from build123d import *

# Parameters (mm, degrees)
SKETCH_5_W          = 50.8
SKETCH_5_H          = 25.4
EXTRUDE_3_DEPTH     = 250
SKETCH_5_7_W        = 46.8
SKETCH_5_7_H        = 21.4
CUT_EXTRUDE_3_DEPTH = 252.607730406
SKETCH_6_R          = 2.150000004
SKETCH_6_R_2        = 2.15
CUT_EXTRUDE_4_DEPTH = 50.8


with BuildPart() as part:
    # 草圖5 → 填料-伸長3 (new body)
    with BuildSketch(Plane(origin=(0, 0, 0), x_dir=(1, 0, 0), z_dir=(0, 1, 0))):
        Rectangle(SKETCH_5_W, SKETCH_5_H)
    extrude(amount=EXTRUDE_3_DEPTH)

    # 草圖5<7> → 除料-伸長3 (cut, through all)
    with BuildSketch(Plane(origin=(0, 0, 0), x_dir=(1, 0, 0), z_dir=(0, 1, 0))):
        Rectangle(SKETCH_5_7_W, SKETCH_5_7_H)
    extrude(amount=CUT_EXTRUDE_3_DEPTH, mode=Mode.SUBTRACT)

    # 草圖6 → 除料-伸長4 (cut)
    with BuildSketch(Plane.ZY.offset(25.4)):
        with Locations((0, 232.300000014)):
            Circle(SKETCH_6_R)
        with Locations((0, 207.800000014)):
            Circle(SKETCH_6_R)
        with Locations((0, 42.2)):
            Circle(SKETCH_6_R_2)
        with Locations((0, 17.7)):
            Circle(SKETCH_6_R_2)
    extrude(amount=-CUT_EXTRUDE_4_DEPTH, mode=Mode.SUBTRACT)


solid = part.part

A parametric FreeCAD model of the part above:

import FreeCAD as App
import Part
import Sketcher


def add_polygon(sketch, points):
    """Adds a closed chain of lines whose ends are joined by coincident constraints."""
    first, n = sketch.GeometryCount, len(points)
    for a, b in zip(points, points[1:] + points[:1]):
        sketch.addGeometry(Part.LineSegment(App.Vector(*a, 0), App.Vector(*b, 0)), False)
    for i in range(n):
        sketch.addConstraint(Sketcher.Constraint("Coincident", first + i, 2, first + (i + 1) % n, 1))

doc = App.newDocument("Part")
body = doc.addObject("PartDesign::Body", "Body")

sketch1 = doc.addObject("Sketcher::SketchObject", "Sketch")
body.addObject(sketch1)
sketch1.AttachmentSupport = (doc.XZ_Plane, [""])
sketch1.MapMode = "FlatFace"
add_polygon(sketch1, [(-25, -13), (-25, 13), (25, 13), (25, -13)])
sketch1.addConstraint([
    Sketcher.Constraint("Vertical", 0),
    Sketcher.Constraint("Horizontal", 1),
    Sketcher.Constraint("Vertical", 2),
    Sketcher.Constraint("Horizontal", 3),
    Sketcher.Constraint("Symmetric", 0, 2, 2, 2, -1, 1),
    Sketcher.Constraint("DistanceX", 1, 1, 1, 2, 50.8),
    Sketcher.Constraint("DistanceY", 0, 1, 0, 2, 25.4),
])
pad1 = doc.addObject("PartDesign::Pad", "Pad")
body.addObject(pad1)
pad1.Profile = sketch1
pad1.Length = 250
pad1.Reversed = True

sketch2 = doc.addObject("Sketcher::SketchObject", "Sketch001")
body.addObject(sketch2)
sketch2.AttachmentSupport = (doc.XZ_Plane, [""])
sketch2.MapMode = "FlatFace"
add_polygon(sketch2, [(-23, -11), (-23, 11), (23, 11), (23, -11)])
sketch2.addConstraint([
    Sketcher.Constraint("Vertical", 0),
    Sketcher.Constraint("Horizontal", 1),
    Sketcher.Constraint("Vertical", 2),
    Sketcher.Constraint("Horizontal", 3),
    Sketcher.Constraint("Symmetric", 0, 2, 2, 2, -1, 1),
    Sketcher.Constraint("DistanceX", 1, 1, 1, 2, 46.8),
    Sketcher.Constraint("DistanceY", 0, 1, 0, 2, 21.4),
])
pocket1 = doc.addObject("PartDesign::Pocket", "Pocket")
body.addObject(pocket1)
pocket1.Profile = sketch2
pocket1.Type = "ThroughAll"

sketch3 = doc.addObject("Sketcher::SketchObject", "Sketch002")
body.addObject(sketch3)
sketch3.AttachmentSupport = (doc.YZ_Plane, [""])
sketch3.MapMode = "FlatFace"
sketch3.AttachmentOffset = App.Placement(App.Vector(0, 0, -25.4), App.Rotation())
sketch3.addGeometry([
    Part.Circle(App.Vector(232.3, 0, 0), App.Vector(0, 0, 1), 2.2),
    Part.Circle(App.Vector(207.8, 0, 0), App.Vector(0, 0, 1), 2.2),
    Part.Circle(App.Vector(42.2, 0, 0), App.Vector(0, 0, 1), 2.1),
    Part.Circle(App.Vector(17.7, 0, 0), App.Vector(0, 0, 1), 2.1),
], False)
sketch3.addConstraint([
    Sketcher.Constraint("Equal", 0, 1),
    Sketcher.Constraint("Equal", 1, 2),
    Sketcher.Constraint("Equal", 2, 3),
    Sketcher.Constraint("PointOnObject", 0, 3, -1),
    Sketcher.Constraint("PointOnObject", 1, 3, -1),
    Sketcher.Constraint("PointOnObject", 2, 3, -1),
    Sketcher.Constraint("PointOnObject", 3, 3, -1),
    Sketcher.Constraint("Diameter", 0, 4.3),
    Sketcher.Constraint("DistanceX", -1, 1, 0, 3, 232.3),
    Sketcher.Constraint("DistanceX", -1, 1, 1, 3, 207.8),
    Sketcher.Constraint("DistanceX", -1, 1, 2, 3, 42.2),
    Sketcher.Constraint("DistanceX", -1, 1, 3, 3, 17.7),
])
pocket2 = doc.addObject("PartDesign::Pocket", "Pocket001")
body.addObject(pocket2)
pocket2.Profile = sketch3
pocket2.Length = 50.8
pocket2.Reversed = True

doc.recompute()
